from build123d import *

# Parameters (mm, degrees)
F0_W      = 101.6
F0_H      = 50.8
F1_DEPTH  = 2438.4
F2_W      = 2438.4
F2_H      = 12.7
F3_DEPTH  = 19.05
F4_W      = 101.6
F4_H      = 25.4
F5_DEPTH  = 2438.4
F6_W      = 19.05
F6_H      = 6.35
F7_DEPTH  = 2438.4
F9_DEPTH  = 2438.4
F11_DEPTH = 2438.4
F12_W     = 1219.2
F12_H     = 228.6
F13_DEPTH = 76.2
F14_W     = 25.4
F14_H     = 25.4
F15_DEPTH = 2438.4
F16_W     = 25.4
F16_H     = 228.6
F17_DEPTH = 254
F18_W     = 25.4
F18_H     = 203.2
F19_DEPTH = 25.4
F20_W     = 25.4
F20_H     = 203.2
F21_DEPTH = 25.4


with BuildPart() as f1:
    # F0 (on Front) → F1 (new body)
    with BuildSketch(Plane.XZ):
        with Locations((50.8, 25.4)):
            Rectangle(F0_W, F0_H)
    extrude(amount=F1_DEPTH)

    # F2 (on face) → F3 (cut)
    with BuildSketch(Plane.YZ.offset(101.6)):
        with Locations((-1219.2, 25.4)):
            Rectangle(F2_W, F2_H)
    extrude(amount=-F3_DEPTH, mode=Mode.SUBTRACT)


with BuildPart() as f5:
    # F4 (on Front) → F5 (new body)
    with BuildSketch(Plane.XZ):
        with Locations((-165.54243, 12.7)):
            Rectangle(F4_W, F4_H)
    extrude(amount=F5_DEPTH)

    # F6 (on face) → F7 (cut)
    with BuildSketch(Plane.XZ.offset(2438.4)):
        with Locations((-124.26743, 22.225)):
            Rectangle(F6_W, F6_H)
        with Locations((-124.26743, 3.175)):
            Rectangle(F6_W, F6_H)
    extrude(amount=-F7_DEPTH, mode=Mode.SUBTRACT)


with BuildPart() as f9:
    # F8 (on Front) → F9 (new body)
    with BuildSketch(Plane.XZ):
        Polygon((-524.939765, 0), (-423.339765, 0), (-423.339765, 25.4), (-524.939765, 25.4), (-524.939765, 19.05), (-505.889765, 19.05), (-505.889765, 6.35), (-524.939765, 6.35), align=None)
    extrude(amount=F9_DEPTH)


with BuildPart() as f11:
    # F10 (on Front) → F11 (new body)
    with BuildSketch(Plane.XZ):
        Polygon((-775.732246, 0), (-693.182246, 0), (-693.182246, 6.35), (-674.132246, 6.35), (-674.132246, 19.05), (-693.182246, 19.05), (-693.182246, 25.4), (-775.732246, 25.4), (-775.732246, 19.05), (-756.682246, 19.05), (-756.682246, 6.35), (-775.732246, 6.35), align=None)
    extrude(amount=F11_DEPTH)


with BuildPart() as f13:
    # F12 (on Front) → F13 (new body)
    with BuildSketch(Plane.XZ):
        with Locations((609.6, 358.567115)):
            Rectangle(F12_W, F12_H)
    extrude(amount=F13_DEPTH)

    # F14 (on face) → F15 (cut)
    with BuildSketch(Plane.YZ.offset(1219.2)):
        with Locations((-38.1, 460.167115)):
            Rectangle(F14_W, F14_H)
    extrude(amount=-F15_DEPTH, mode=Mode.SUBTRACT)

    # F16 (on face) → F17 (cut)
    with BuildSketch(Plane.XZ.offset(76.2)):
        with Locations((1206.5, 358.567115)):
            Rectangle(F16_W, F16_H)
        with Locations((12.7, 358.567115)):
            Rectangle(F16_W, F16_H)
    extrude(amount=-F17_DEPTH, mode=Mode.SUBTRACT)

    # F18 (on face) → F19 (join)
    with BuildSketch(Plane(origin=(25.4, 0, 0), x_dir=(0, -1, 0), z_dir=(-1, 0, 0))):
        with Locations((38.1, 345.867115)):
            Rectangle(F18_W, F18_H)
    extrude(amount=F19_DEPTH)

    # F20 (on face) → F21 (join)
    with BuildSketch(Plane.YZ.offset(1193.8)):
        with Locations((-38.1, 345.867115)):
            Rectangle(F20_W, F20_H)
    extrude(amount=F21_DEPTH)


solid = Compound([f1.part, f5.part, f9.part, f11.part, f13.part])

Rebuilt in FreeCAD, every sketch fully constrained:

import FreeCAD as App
import Part
import Sketcher
from FreeCAD import Vector
Q = App.Units.Quantity

doc = App.newDocument("Part")
body = doc.addObject("PartDesign::Body", "Body")

sketch1 = body.newObject("Sketcher::SketchObject", "Sketch")
sketch1.AttachmentSupport = (doc.getObject("XZ_Plane"), [""])
sketch1.MapMode = "FlatFace"
sketch1.addGeometry(Part.LineSegment(Vector(0, 51, 0), Vector(0, 0, 0)), False)
sketch1.addGeometry(Part.LineSegment(Vector(0, 0, 0), Vector(102, 0, 0)), False)
sketch1.addGeometry(Part.LineSegment(Vector(102, 0, 0), Vector(102, 51, 0)), False)
sketch1.addGeometry(Part.LineSegment(Vector(102, 51, 0), Vector(0, 51, 0)), False)
sketch1.addConstraint(Sketcher.Constraint("Coincident", 0, 2, 1, 1))
sketch1.addConstraint(Sketcher.Constraint("Coincident", 1, 2, 2, 1))
sketch1.addConstraint(Sketcher.Constraint("Coincident", 2, 2, 3, 1))
sketch1.addConstraint(Sketcher.Constraint("Coincident", 3, 2, 0, 1))
sketch1.addConstraint(Sketcher.Constraint("Vertical", 0))
sketch1.addConstraint(Sketcher.Constraint("Horizontal", 1))
sketch1.addConstraint(Sketcher.Constraint("Vertical", 2))
sketch1.addConstraint(Sketcher.Constraint("Horizontal", 3))
sketch1.addConstraint(Sketcher.Constraint("Coincident", 0, 2, -1, 1))
sketch1.addConstraint(Sketcher.Constraint("DistanceX", 1, 1, 1, 2, Q("4 in")))
sketch1.addConstraint(Sketcher.Constraint("DistanceY", 0, 2, 0, 1, Q("2 in")))
pad1 = body.newObject("PartDesign::Pad", "Pad")
pad1.Profile = sketch1
pad1.Length = Q("96 in")

sketch2 = body.newObject("Sketcher::SketchObject", "Sketch001")
sketch2.AttachmentSupport = (doc.getObject("YZ_Plane"), [""])
sketch2.MapMode = "FlatFace"
sketch2.AttachmentOffset = App.Placement(Vector(0, 0, 4 * 25.4), App.Rotation())
sketch2.addGeometry(Part.LineSegment(Vector(-2438, 32, 0), Vector(-2438, 19, 0)), False)
sketch2.addGeometry(Part.LineSegment(Vector(-2438, 19, 0), Vector(0, 19, 0)), False)
sketch2.addGeometry(Part.LineSegment(Vector(0, 19, 0), Vector(0, 32, 0)), False)
sketch2.addGeometry(Part.LineSegment(Vector(0, 32, 0), Vector(-2438, 32, 0)), False)
sketch2.addConstraint(Sketcher.Constraint("Coincident", 0, 2, 1, 1))
sketch2.addConstraint(Sketcher.Constraint("Coincident", 1, 2, 2, 1))
sketch2.addConstraint(Sketcher.Constraint("Coincident", 2, 2, 3, 1))
sketch2.addConstraint(Sketcher.Constraint("Coincident", 3, 2, 0, 1))
sketch2.addConstraint(Sketcher.Constraint("Vertical", 0))
sketch2.addConstraint(Sketcher.Constraint("Horizontal", 1))
sketch2.addConstraint(Sketcher.Constraint("Vertical", 2))
sketch2.addConstraint(Sketcher.Constraint("Horizontal", 3))
sketch2.addConstraint(Sketcher.Constraint("PointOnObject", 1, 2, -2))
sketch2.addConstraint(Sketcher.Constraint("DistanceX", 1, 1, 1, 2, Q("96 in")))
sketch2.addConstraint(Sketcher.Constraint("DistanceY", 0, 2, 0, 1, Q("0.5 in")))
sketch2.addConstraint(Sketcher.Constraint("DistanceY", -1, 1, 0, 2, Q("0.75 in")))
pocket1 = body.newObject("PartDesign::Pocket", "Pocket")
pocket1.Profile = sketch2
pocket1.Length = Q("0.75 in")
body2 = doc.addObject("PartDesign::Body", "Body001")

sketch3 = body2.newObject("Sketcher::SketchObject", "Sketch002")
sketch3.AttachmentSupport = (doc.getObject("XZ_Plane001"), [""])
sketch3.MapMode = "FlatFace"
sketch3.addGeometry(Part.LineSegment(Vector(-216, 25, 0), Vector(-216, 0, 0)), False)
sketch3.addGeometry(Part.LineSegment(Vector(-216, 0, 0), Vector(-115, 0, 0)), False)
sketch3.addGeometry(Part.LineSegment(Vector(-115, 0, 0), Vector(-115, 25, 0)), False)
sketch3.addGeometry(Part.LineSegment(Vector(-115, 25, 0), Vector(-216, 25, 0)), False)
sketch3.addConstraint(Sketcher.Constraint("Coincident", 0, 2, 1, 1))
sketch3.addConstraint(Sketcher.Constraint("Coincident", 1, 2, 2, 1))
sketch3.addConstraint(Sketcher.Constraint("Coincident", 2, 2, 3, 1))
sketch3.addConstraint(Sketcher.Constraint("Coincident", 3, 2, 0, 1))
sketch3.addConstraint(Sketcher.Constraint("Vertical", 0))
sketch3.addConstraint(Sketcher.Constraint("Horizontal", 1))
sketch3.addConstraint(Sketcher.Constraint("Vertical", 2))
sketch3.addConstraint(Sketcher.Constraint("Horizontal", 3))
sketch3.addConstraint(Sketcher.Constraint("PointOnObject", 0, 2, -1))
sketch3.addConstraint(Sketcher.Constraint("DistanceX", 1, 1, 1, 2, Q("4 in")))
sketch3.addConstraint(Sketcher.Constraint("DistanceY", 0, 2, 0, 1, Q("1 in")))
sketch3.addConstraint(Sketcher.Constraint("DistanceX", 0, 2, -1, 1, Q("216.34243 mm")))
pad2 = body2.newObject("PartDesign::Pad", "Pad001")
pad2.Profile = sketch3
pad2.Length = Q("96 in")

sketch4 = body2.newObject("Sketcher::SketchObject", "Sketch003")
sketch4.AttachmentSupport = (doc.getObject("XZ_Plane001"), [""])
sketch4.MapMode = "FlatFace"
sketch4.AttachmentOffset = App.Placement(Vector(0, 0, 96 * 25.4), App.Rotation())
sketch4.addGeometry(Part.LineSegment(Vector(-134, 25, 0), Vector(-134, 19, 0)), False)
sketch4.addGeometry(Part.LineSegment(Vector(-134, 19, 0), Vector(-115, 19, 0)), False)
sketch4.addGeometry(Part.LineSegment(Vector(-115, 19, 0), Vector(-115, 25, 0)), False)
sketch4.addGeometry(Part.LineSegment(Vector(-115, 25, 0), Vector(-134, 25, 0)), False)
sketch4.addGeometry(Part.LineSegment(Vector(-134, 6, 0), Vector(-134, 0, 0)), False)
sketch4.addGeometry(Part.LineSegment(Vector(-134, 0, 0), Vector(-115, 0, 0)), False)
sketch4.addGeometry(Part.LineSegment(Vector(-115, 0, 0), Vector(-115, 6, 0)), False)
sketch4.addGeometry(Part.LineSegment(Vector(-115, 6, 0), Vector(-134, 6, 0)), False)
sketch4.addConstraint(Sketcher.Constraint("Coincident", 0, 2, 1, 1))
sketch4.addConstraint(Sketcher.Constraint("Coincident", 1, 2, 2, 1))
sketch4.addConstraint(Sketcher.Constraint("Coincident", 2, 2, 3, 1))
sketch4.addConstraint(Sketcher.Constraint("Coincident", 3, 2, 0, 1))
sketch4.addConstraint(Sketcher.Constraint("Coincident", 4, 2, 5, 1))
sketch4.addConstraint(Sketcher.Constraint("Coincident", 5, 2, 6, 1))
sketch4.addConstraint(Sketcher.Constraint("Coincident", 6, 2, 7, 1))
sketch4.addConstraint(Sketcher.Constraint("Coincident", 7, 2, 4, 1))
sketch4.addConstraint(Sketcher.Constraint("Vertical", 0))
sketch4.addConstraint(Sketcher.Constraint("Horizontal", 1))
sketch4.addConstraint(Sketcher.Constraint("Vertical", 2))
sketch4.addConstraint(Sketcher.Constraint("Horizontal", 3))
sketch4.addConstraint(Sketcher.Constraint("Vertical", 4))
sketch4.addConstraint(Sketcher.Constraint("Horizontal", 5))
sketch4.addConstraint(Sketcher.Constraint("Vertical", 6))
sketch4.addConstraint(Sketcher.Constraint("Horizontal", 7))
sketch4.addConstraint(Sketcher.Constraint("PointOnObject", 4, 2, -1))
sketch4.addConstraint(Sketcher.Constraint("Vertical", 3, 2, 4, 2))
sketch4.addConstraint(Sketcher.Constraint("Vertical", 2, 2, 5, 2))
sketch4.addConstraint(Sketcher.Constraint("Equal", 2, 4))
sketch4.addConstraint(Sketcher.Constraint("DistanceY", -1, 1, 2, 2, Q("1 in")))
sketch4.addConstraint(Sketcher.Constraint("DistanceX", 1, 1, 1, 2, Q("0.75 in")))
sketch4.addConstraint(Sketcher.Constraint("DistanceY", 0, 2, 0, 1, Q("0.25 in")))
sketch4.addConstraint(Sketcher.Constraint("DistanceX", 0, 2, -1, 1, Q("133.79243 mm")))
pocket2 = body2.newObject("PartDesign::Pocket", "Pocket001")
pocket2.Profile = sketch4
pocket2.Length = Q("96 in")
body3 = doc.addObject("PartDesign::Body", "Body002")

sketch5 = body3.newObject("Sketcher::SketchObject", "Sketch004")
sketch5.AttachmentSupport = (doc.getObject("XZ_Plane002"), [""])
sketch5.MapMode = "FlatFace"
sketch5.addGeometry(Part.LineSegment(Vector(-525, 0, 0), Vector(-423, 0, 0)), False)
sketch5.addGeometry(Part.LineSegment(Vector(-423, 0, 0), Vector(-423, 25, 0)), False)
sketch5.addGeometry(Part.LineSegment(Vector(-423, 25, 0), Vector(-525, 25, 0)), False)
sketch5.addGeometry(Part.LineSegment(Vector(-525, 25, 0), Vector(-525, 19, 0)), False)
sketch5.addGeometry(Part.LineSegment(Vector(-525, 19, 0), Vector(-506, 19, 0)), False)
sketch5.addGeometry(Part.LineSegment(Vector(-506, 19, 0), Vector(-506, 6, 0)), False)
sketch5.addGeometry(Part.LineSegment(Vector(-506, 6, 0), Vector(-525, 6, 0)), False)
sketch5.addGeometry(Part.LineSegment(Vector(-525, 6, 0), Vector(-525, 0, 0)), False)
sketch5.addConstraint(Sketcher.Constraint("Coincident", 0, 2, 1, 1))
sketch5.addConstraint(Sketcher.Constraint("Coincident", 1, 2, 2, 1))
sketch5.addConstraint(Sketcher.Constraint("Coincident", 2, 2, 3, 1))
sketch5.addConstraint(Sketcher.Constraint("Coincident", 3, 2, 4, 1))
sketch5.addConstraint(Sketcher.Constraint("Coincident", 4, 2, 5, 1))
sketch5.addConstraint(Sketcher.Constraint("Coincident", 5, 2, 6, 1))
sketch5.addConstraint(Sketcher.Constraint("Coincident", 6, 2, 7, 1))
sketch5.addConstraint(Sketcher.Constraint("Coincident", 7, 2, 0, 1))
sketch5.addConstraint(Sketcher.Constraint("Horizontal", 0))
sketch5.addConstraint(Sketcher.Constraint("Vertical", 1))
sketch5.addConstraint(Sketcher.Constraint("Horizontal", 2))
sketch5.addConstraint(Sketcher.Constraint("Vertical", 3))
sketch5.addConstraint(Sketcher.Constraint("Horizontal", 4))
sketch5.addConstraint(Sketcher.Constraint("Vertical", 5))
sketch5.addConstraint(Sketcher.Constraint("Horizontal", 6))
sketch5.addConstraint(Sketcher.Constraint("Vertical", 7))
sketch5.addConstraint(Sketcher.Constraint("PointOnObject", 0, 2, -1))
sketch5.addConstraint(Sketcher.Constraint("Vertical", 3, 2, 6, 2))
sketch5.addConstraint(Sketcher.Constraint("Equal", 3, 7))
sketch5.addConstraint(Sketcher.Constraint("DistanceX", 0, 1, 0, 2, Q("4 in")))
sketch5.addConstraint(Sketcher.Constraint("DistanceY", 1, 1, 1, 2, Q("1 in")))
sketch5.addConstraint(Sketcher.Constraint("DistanceY", 5, 2, 5, 1, Q("0.5 in")))
sketch5.addConstraint(Sketcher.Constraint("DistanceX", 4, 1, 4, 2, Q("0.75 in")))
sketch5.addConstraint(Sketcher.Constraint("DistanceX", 0, 2, -1, 1, Q("423.339765 mm")))
pad3 = body3.newObject("PartDesign::Pad", "Pad002")
pad3.Profile = sketch5
pad3.Length = Q("96 in")
body4 = doc.addObject("PartDesign::Body", "Body003")

sketch6 = body4.newObject("Sketcher::SketchObject", "Sketch005")
sketch6.AttachmentSupport = (doc.getObject("XZ_Plane003"), [""])
sketch6.MapMode = "FlatFace"
sketch6.addGeometry(Part.LineSegment(Vector(-776, 0, 0), Vector(-693, 0, 0)), False)
sketch6.addGeometry(Part.LineSegment(Vector(-693, 0, 0), Vector(-693, 6, 0)), False)
sketch6.addGeometry(Part.LineSegment(Vector(-693, 6, 0), Vector(-674, 6, 0)), False)
sketch6.addGeometry(Part.LineSegment(Vector(-674, 6, 0), Vector(-674, 19, 0)), False)
sketch6.addGeometry(Part.LineSegment(Vector(-674, 19, 0), Vector(-693, 19, 0)), False)
sketch6.addGeometry(Part.LineSegment(Vector(-693, 19, 0), Vector(-693, 25, 0)), False)
sketch6.addGeometry(Part.LineSegment(Vector(-693, 25, 0), Vector(-776, 25, 0)), False)
sketch6.addGeometry(Part.LineSegment(Vector(-776, 25, 0), Vector(-776, 19, 0)), False)
sketch6.addGeometry(Part.LineSegment(Vector(-776, 19, 0), Vector(-757, 19, 0)), False)
sketch6.addGeometry(Part.LineSegment(Vector(-757, 19, 0), Vector(-757, 6, 0)), False)
sketch6.addGeometry(Part.LineSegment(Vector(-757, 6, 0), Vector(-776, 6, 0)), False)
sketch6.addGeometry(Part.LineSegment(Vector(-776, 6, 0), Vector(-776, 0, 0)), False)
sketch6.addConstraint(Sketcher.Constraint("Coincident", 0, 2, 1, 1))
sketch6.addConstraint(Sketcher.Constraint("Coincident", 1, 2, 2, 1))
sketch6.addConstraint(Sketcher.Constraint("Coincident", 2, 2, 3, 1))
sketch6.addConstraint(Sketcher.Constraint("Coincident", 3, 2, 4, 1))
sketch6.addConstraint(Sketcher.Constraint("Coincident", 4, 2, 5, 1))
sketch6.addConstraint(Sketcher.Constraint("Coincident", 5, 2, 6, 1))
sketch6.addConstraint(Sketcher.Constraint("Coincident", 6, 2, 7, 1))
sketch6.addConstraint(Sketcher.Constraint("Coincident", 7, 2, 8, 1))
sketch6.addConstraint(Sketcher.Constraint("Coincident", 8, 2, 9, 1))
sketch6.addConstraint(Sketcher.Constraint("Coincident", 9, 2, 10, 1))
sketch6.addConstraint(Sketcher.Constraint("Coincident", 10, 2, 11, 1))
sketch6.addConstraint(Sketcher.Constraint("Coincident", 11, 2, 0, 1))
sketch6.addConstraint(Sketcher.Constraint("Horizontal", 0))
sketch6.addConstraint(Sketcher.Constraint("Vertical", 1))
sketch6.addConstraint(Sketcher.Constraint("Horizontal", 2))
sketch6.addConstraint(Sketcher.Constraint("Vertical", 3))
sketch6.addConstraint(Sketcher.Constraint("Horizontal", 4))
sketch6.addConstraint(Sketcher.Constraint("Vertical", 5))
sketch6.addConstraint(Sketcher.Constraint("Horizontal", 6))
sketch6.addConstraint(Sketcher.Constraint("Vertical", 7))
sketch6.addConstraint(Sketcher.Constraint("Horizontal", 8))
sketch6.addConstraint(Sketcher.Constraint("Vertical", 9))
sketch6.addConstraint(Sketcher.Constraint("Horizontal", 10))
sketch6.addConstraint(Sketcher.Constraint("Vertical", 11))
sketch6.addConstraint(Sketcher.Constraint("PointOnObject", 0, 2, -1))
sketch6.addConstraint(Sketcher.Constraint("Horizontal", 4, 2, 7, 2))
sketch6.addConstraint(Sketcher.Constraint("Horizontal", 2, 2, 9, 2))
sketch6.addConstraint(Sketcher.Constraint("Vertical", 1, 2, 4, 2))
sketch6.addConstraint(Sketcher.Constraint("Vertical", 7, 2, 10, 2))
sketch6.addConstraint(Sketcher.Constraint("Equal", 4, 8))
sketch6.addConstraint(Sketcher.Constraint("Equal", 1, 5))
sketch6.addConstraint(Sketcher.Constraint("DistanceY", 3, 1, 3, 2, Q("0.5 in")))
sketch6.addConstraint(Sketcher.Constraint("DistanceY", -1, 1, 5, 2, Q("1 in")))
sketch6.addConstraint(Sketcher.Constraint("DistanceX", 6, 2, 3, 2, Q("4 in")))
sketch6.addConstraint(Sketcher.Constraint("DistanceX", 0, 1, 0, 2, Q("3.25 in")))
sketch6.addConstraint(Sketcher.Constraint("DistanceX", 0, 2, -1, 1, Q("693.182246 mm")))
pad4 = body4.newObject("PartDesign::Pad", "Pad003")
pad4.Profile = sketch6
pad4.Length = Q("96 in")
body5 = doc.addObject("PartDesign::Body", "Body004")

sketch7 = body5.newObject("Sketcher::SketchObject", "Sketch006")
sketch7.AttachmentSupport = (doc.getObject("XZ_Plane004"), [""])
sketch7.MapMode = "FlatFace"
sketch7.addGeometry(Part.LineSegment(Vector(0, 473, 0), Vector(0, 244, 0)), False)
sketch7.addGeometry(Part.LineSegment(Vector(0, 244, 0), Vector(1219, 244, 0)), False)
sketch7.addGeometry(Part.LineSegment(Vector(1219, 244, 0), Vector(1219, 473, 0)), False)
sketch7.addGeometry(Part.LineSegment(Vector(1219, 473, 0), Vector(0, 473, 0)), False)
sketch7.addConstraint(Sketcher.Constraint("Coincident", 0, 2, 1, 1))
sketch7.addConstraint(Sketcher.Constraint("Coincident", 1, 2, 2, 1))
sketch7.addConstraint(Sketcher.Constraint("Coincident", 2, 2, 3, 1))
sketch7.addConstraint(Sketcher.Constraint("Coincident", 3, 2, 0, 1))
sketch7.addConstraint(Sketcher.Constraint("Vertical", 0))
sketch7.addConstraint(Sketcher.Constraint("Horizontal", 1))
sketch7.addConstraint(Sketcher.Constraint("Vertical", 2))
sketch7.addConstraint(Sketcher.Constraint("Horizontal", 3))
sketch7.addConstraint(Sketcher.Constraint("PointOnObject", 0, 2, -2))
sketch7.addConstraint(Sketcher.Constraint("DistanceX", 1, 1, 1, 2, Q("48 in")))
sketch7.addConstraint(Sketcher.Constraint("DistanceY", 0, 2, 0, 1, Q("9 in")))
sketch7.addConstraint(Sketcher.Constraint("DistanceY", -1, 1, 0, 2, Q("244.267115 mm")))
pad5 = body5.newObject("PartDesign::Pad", "Pad004")
pad5.Profile = sketch7
pad5.Length = Q("3 in")

sketch8 = body5.newObject("Sketcher::SketchObject", "Sketch007")
sketch8.AttachmentSupport = (doc.getObject("YZ_Plane004"), [""])
sketch8.MapMode = "FlatFace"
sketch8.AttachmentOffset = App.Placement(Vector(0, 0, 48 * 25.4), App.Rotation())
sketch8.addGeometry(Part.LineSegment(Vector(-51, 473, 0), Vector(-51, 447, 0)), False)
sketch8.addGeometry(Part.LineSegment(Vector(-51, 447, 0), Vector(-25, 447, 0)), False)
sketch8.addGeometry(Part.LineSegment(Vector(-25, 447, 0), Vector(-25, 473, 0)), False)
sketch8.addGeometry(Part.LineSegment(Vector(-25, 473, 0), Vector(-51, 473, 0)), False)
sketch8.addConstraint(Sketcher.Constraint("Coincident", 0, 2, 1, 1))
sketch8.addConstraint(Sketcher.Constraint("Coincident", 1, 2, 2, 1))
sketch8.addConstraint(Sketcher.Constraint("Coincident", 2, 2, 3, 1))
sketch8.addConstraint(Sketcher.Constraint("Coincident", 3, 2, 0, 1))
sketch8.addConstraint(Sketcher.Constraint("Vertical", 0))
sketch8.addConstraint(Sketcher.Constraint("Horizontal", 1))
sketch8.addConstraint(Sketcher.Constraint("Vertical", 2))
sketch8.addConstraint(Sketcher.Constraint("Horizontal", 3))
sketch8.addConstraint(Sketcher.Constraint("Equal", 3, 0))
sketch8.addConstraint(Sketcher.Constraint("DistanceX", 1, 1, 1, 2, Q("1 in")))
sketch8.addConstraint(Sketcher.Constraint("DistanceX", 0, 2, -1, 1, Q("2 in")))
sketch8.addConstraint(Sketcher.Constraint("DistanceY", -1, 1, 0, 2, Q("447.467115 mm")))
pocket3 = body5.newObject("PartDesign::Pocket", "Pocket002")
pocket3.Profile = sketch8
pocket3.Length = Q("96 in")

sketch9 = body5.newObject("Sketcher::SketchObject", "Sketch008")
sketch9.AttachmentSupport = (doc.getObject("XZ_Plane004"), [""])
sketch9.MapMode = "FlatFace"
sketch9.AttachmentOffset = App.Placement(Vector(0, 0, 3 * 25.4), App.Rotation())
sketch9.addGeometry(Part.LineSegment(Vector(1194, 473, 0), Vector(1194, 244, 0)), False)
sketch9.addGeometry(Part.LineSegment(Vector(1194, 244, 0), Vector(1219, 244, 0)), False)
sketch9.addGeometry(Part.LineSegment(Vector(1219, 244, 0), Vector(1219, 473, 0)), False)
sketch9.addGeometry(Part.LineSegment(Vector(1219, 473, 0), Vector(1194, 473, 0)), False)
sketch9.addGeometry(Part.LineSegment(Vector(0, 473, 0), Vector(0, 244, 0)), False)
sketch9.addGeometry(Part.LineSegment(Vector(0, 244, 0), Vector(25, 244, 0)), False)
sketch9.addGeometry(Part.LineSegment(Vector(25, 244, 0), Vector(25, 473, 0)), False)
sketch9.addGeometry(Part.LineSegment(Vector(25, 473, 0), Vector(0, 473, 0)), False)
sketch9.addConstraint(Sketcher.Constraint("Coincident", 0, 2, 1, 1))
sketch9.addConstraint(Sketcher.Constraint("Coincident", 1, 2, 2, 1))
sketch9.addConstraint(Sketcher.Constraint("Coincident", 2, 2, 3, 1))
sketch9.addConstraint(Sketcher.Constraint("Coincident", 3, 2, 0, 1))
sketch9.addConstraint(Sketcher.Constraint("Coincident", 4, 2, 5, 1))
sketch9.addConstraint(Sketcher.Constraint("Coincident", 5, 2, 6, 1))
sketch9.addConstraint(Sketcher.Constraint("Coincident", 6, 2, 7, 1))
sketch9.addConstraint(Sketcher.Constraint("Coincident", 7, 2, 4, 1))
sketch9.addConstraint(Sketcher.Constraint("Vertical", 0))
sketch9.addConstraint(Sketcher.Constraint("Horizontal", 1))
sketch9.addConstraint(Sketcher.Constraint("Vertical", 2))
sketch9.addConstraint(Sketcher.Constraint("Horizontal", 3))
sketch9.addConstraint(Sketcher.Constraint("Vertical", 4))
sketch9.addConstraint(Sketcher.Constraint("Horizontal", 5))
sketch9.addConstraint(Sketcher.Constraint("Vertical", 6))
sketch9.addConstraint(Sketcher.Constraint("Horizontal", 7))
sketch9.addConstraint(Sketcher.Constraint("PointOnObject", 4, 2, -2))
sketch9.addConstraint(Sketcher.Constraint("Horizontal", 1, 2, 4, 2))
sketch9.addConstraint(Sketcher.Constraint("Horizontal", 3, 2, 6, 2))
sketch9.addConstraint(Sketcher.Constraint("Equal", 3, 5))
sketch9.addConstraint(Sketcher.Constraint("DistanceX", 1, 1, 1, 2, Q("1 in")))
sketch9.addConstraint(Sketcher.Constraint("DistanceY", 0, 2, 0, 1, Q("9 in")))
sketch9.addConstraint(Sketcher.Constraint("DistanceX", -1, 1, 0, 2, Q("47 in")))
sketch9.addConstraint(Sketcher.Constraint("DistanceY", -1, 1, 0, 2, Q("244.267115 mm")))
pocket4 = body5.newObject("PartDesign::Pocket", "Pocket003")
pocket4.Profile = sketch9
pocket4.Length = Q("10 in")

sketch10 = body5.newObject("Sketcher::SketchObject", "Sketch009")
sketch10.AttachmentSupport = (doc.getObject("YZ_Plane004"), [""])
sketch10.MapMode = "FlatFace"
sketch10.AttachmentOffset = App.Placement(Vector(0, 0, 1 * 25.4), App.Rotation())
sketch10.addGeometry(Part.LineSegment(Vector(-25, 447, 0), Vector(-25, 244, 0)), False)
sketch10.addGeometry(Part.LineSegment(Vector(-25, 244, 0), Vector(-51, 244, 0)), False)
sketch10.addGeometry(Part.LineSegment(Vector(-51, 244, 0), Vector(-51, 447, 0)), False)
sketch10.addGeometry(Part.LineSegment(Vector(-51, 447, 0), Vector(-25, 447, 0)), False)
sketch10.addConstraint(Sketcher.Constraint("Coincident", 0, 2, 1, 1))
sketch10.addConstraint(Sketcher.Constraint("Coincident", 1, 2, 2, 1))
sketch10.addConstraint(Sketcher.Constraint("Coincident", 2, 2, 3, 1))
sketch10.addConstraint(Sketcher.Constraint("Coincident", 3, 2, 0, 1))
sketch10.addConstraint(Sketcher.Constraint("Vertical", 0))
sketch10.addConstraint(Sketcher.Constraint("Horizontal", 1))
sketch10.addConstraint(Sketcher.Constraint("Vertical", 2))
sketch10.addConstraint(Sketcher.Constraint("Horizontal", 3))
sketch10.addConstraint(Sketcher.Constraint("DistanceX", 1, 2, 1, 1, Q("1 in")))
sketch10.addConstraint(Sketcher.Constraint("DistanceY", 0, 2, 0, 1, Q("8 in")))
sketch10.addConstraint(Sketcher.Constraint("DistanceX", 0, 2, -1, 1, Q("1 in")))
sketch10.addConstraint(Sketcher.Constraint("DistanceY", -1, 1, 0, 2, Q("244.267115 mm")))
pad6 = body5.newObject("PartDesign::Pad", "Pad005")
pad6.Profile = sketch10
pad6.Length = Q("1 in")
pad6.Reversed = True

sketch11 = body5.newObject("Sketcher::SketchObject", "Sketch010")
sketch11.AttachmentSupport = (doc.getObject("YZ_Plane004"), [""])
sketch11.MapMode = "FlatFace"
sketch11.AttachmentOffset = App.Placement(Vector(0, 0, 47 * 25.4), App.Rotation())
sketch11.addGeometry(Part.LineSegment(Vector(-51, 447, 0), Vector(-51, 244, 0)), False)
sketch11.addGeometry(Part.LineSegment(Vector(-51, 244, 0), Vector(-25, 244, 0)), False)
sketch11.addGeometry(Part.LineSegment(Vector(-25, 244, 0), Vector(-25, 447, 0)), False)
sketch11.addGeometry(Part.LineSegment(Vector(-25, 447, 0), Vector(-51, 447, 0)), False)
sketch11.addConstraint(Sketcher.Constraint("Coincident", 0, 2, 1, 1))
sketch11.addConstraint(Sketcher.Constraint("Coincident", 1, 2, 2, 1))
sketch11.addConstraint(Sketcher.Constraint("Coincident", 2, 2, 3, 1))
sketch11.addConstraint(Sketcher.Constraint("Coincident", 3, 2, 0, 1))
sketch11.addConstraint(Sketcher.Constraint("Vertical", 0))
sketch11.addConstraint(Sketcher.Constraint("Horizontal", 1))
sketch11.addConstraint(Sketcher.Constraint("Vertical", 2))
sketch11.addConstraint(Sketcher.Constraint("Horizontal", 3))
sketch11.addConstraint(Sketcher.Constraint("DistanceX", 1, 1, 1, 2, Q("1 in")))
sketch11.addConstraint(Sketcher.Constraint("DistanceY", 0, 2, 0, 1, Q("8 in")))
sketch11.addConstraint(Sketcher.Constraint("DistanceX", 0, 2, -1, 1, Q("2 in")))
sketch11.addConstraint(Sketcher.Constraint("DistanceY", -1, 1, 0, 2, Q("244.267115 mm")))
pad7 = body5.newObject("PartDesign::Pad", "Pad006")
pad7.Profile = sketch11
pad7.Length = Q("1 in")

doc.recompute()
